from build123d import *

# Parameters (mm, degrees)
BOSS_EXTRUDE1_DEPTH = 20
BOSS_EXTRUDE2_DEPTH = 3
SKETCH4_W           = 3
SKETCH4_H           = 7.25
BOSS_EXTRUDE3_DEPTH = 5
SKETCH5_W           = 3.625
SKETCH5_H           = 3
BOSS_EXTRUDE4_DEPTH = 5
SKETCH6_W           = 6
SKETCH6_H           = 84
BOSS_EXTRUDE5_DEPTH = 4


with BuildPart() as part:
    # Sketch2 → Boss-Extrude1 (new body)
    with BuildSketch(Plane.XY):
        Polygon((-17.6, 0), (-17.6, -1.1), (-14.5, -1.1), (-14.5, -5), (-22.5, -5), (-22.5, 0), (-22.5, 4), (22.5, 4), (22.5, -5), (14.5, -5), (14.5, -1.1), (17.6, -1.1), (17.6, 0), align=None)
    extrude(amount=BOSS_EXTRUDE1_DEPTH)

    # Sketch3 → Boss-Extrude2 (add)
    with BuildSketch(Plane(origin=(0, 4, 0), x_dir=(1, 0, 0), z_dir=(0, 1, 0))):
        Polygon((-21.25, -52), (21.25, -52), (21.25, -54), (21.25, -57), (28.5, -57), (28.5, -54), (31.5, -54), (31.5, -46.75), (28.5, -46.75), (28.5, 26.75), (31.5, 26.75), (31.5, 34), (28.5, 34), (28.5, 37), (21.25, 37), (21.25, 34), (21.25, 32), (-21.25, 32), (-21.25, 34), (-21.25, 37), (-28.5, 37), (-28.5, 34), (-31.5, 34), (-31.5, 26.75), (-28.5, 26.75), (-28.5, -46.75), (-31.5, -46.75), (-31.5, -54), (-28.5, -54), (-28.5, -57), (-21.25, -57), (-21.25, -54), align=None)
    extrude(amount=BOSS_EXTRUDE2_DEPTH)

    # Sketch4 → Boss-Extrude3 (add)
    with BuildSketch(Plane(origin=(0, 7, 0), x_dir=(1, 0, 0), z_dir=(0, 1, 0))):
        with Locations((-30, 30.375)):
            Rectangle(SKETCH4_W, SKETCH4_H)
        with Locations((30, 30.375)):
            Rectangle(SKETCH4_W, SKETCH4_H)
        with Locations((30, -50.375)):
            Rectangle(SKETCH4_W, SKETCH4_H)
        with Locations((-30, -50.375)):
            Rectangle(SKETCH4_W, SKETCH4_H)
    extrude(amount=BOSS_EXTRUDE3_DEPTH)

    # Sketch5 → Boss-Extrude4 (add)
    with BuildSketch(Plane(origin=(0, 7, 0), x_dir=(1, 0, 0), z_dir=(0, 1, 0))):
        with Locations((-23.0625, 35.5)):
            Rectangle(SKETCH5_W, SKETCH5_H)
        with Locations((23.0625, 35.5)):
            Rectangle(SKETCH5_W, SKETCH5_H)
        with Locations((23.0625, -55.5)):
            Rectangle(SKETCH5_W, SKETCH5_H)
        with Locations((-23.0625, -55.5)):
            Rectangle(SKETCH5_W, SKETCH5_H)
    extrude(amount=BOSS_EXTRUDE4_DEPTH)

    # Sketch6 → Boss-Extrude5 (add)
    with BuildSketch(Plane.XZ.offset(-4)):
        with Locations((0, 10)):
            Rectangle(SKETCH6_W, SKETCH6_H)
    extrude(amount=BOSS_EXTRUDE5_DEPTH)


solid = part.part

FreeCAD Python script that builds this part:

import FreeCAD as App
import Part
import Sketcher

V = App.Vector


def add_polygon(sketch, points):
    """Adds a closed chain of lines whose ends are joined by coincident constraints."""
    first, n = sketch.GeometryCount, len(points)
    for a, b in zip(points, points[1:] + points[:1]):
        sketch.addGeometry(Part.LineSegment(App.Vector(*a, 0), App.Vector(*b, 0)), False)
    for i in range(n):
        sketch.addConstraint(Sketcher.Constraint("Coincident", first + i, 2, first + (i + 1) % n, 1))

doc = App.newDocument("Part")
params = doc.addObject("Spreadsheet::Sheet", "Params")
for row, (alias, value) in enumerate([
    ("sketch1_width", "8 mm"),
    ("sketch1_width2", "45 mm"),
    ("sketch1_height", "9 mm"),
    ("sketch1_width3", "35.2 mm"),
    ("sketch1_height2", "1.1 mm"),
    ("pad1_length", "20 mm"),
    ("sketch2_width", "3 mm"),
    ("sketch2_height", "5 mm"),
    ("sketch2_width2", "42.5 mm"),
    ("sketch2_height2", "73.5 mm"),
    ("pad2_length", "3 mm"),
    ("sketch3_width", "3 mm"),
    ("sketch3_height", "7.25 mm"),
    ("pad3_length", "5 mm"),
    ("sketch4_height", "3 mm"),
    ("pad4_length", "5 mm"),
    ("sketch5_width", "6 mm"),
    ("sketch5_height", "84 mm"),
    ("pad5_length", "4 mm"),
], start=1):
    params.set(f"A{row}", alias)
    params.set(f"B{row}", "=" + value)
    params.setAlias(f"B{row}", alias)

body = doc.addObject("PartDesign::Body", "Body")

# Sketch on XY plane
sketch1 = body.newObject("Sketcher::SketchObject", "Sketch")
sketch1.AttachmentSupport = (doc.getObject("XY_Plane"), [""])
sketch1.MapMode = "FlatFace"
add_polygon(sketch1, [(-17.6, -1.1), (-17.6, 0), (17.6, 0), (17.6, -1.1), (14.5, -1.1), (14.5, -5), (22.5, -5), (22.5, 4), (-22.5, 4), (-22.5, -5), (-14.5, -5), (-14.5, -1.1)])  # lines 0-11
sketch1.addConstraint([
    Sketcher.Constraint("Vertical", 0),
    Sketcher.Constraint("Horizontal", 1),
    Sketcher.Constraint("Vertical", 2),
    Sketcher.Constraint("Horizontal", 3),
    Sketcher.Constraint("Vertical", 4),
    Sketcher.Constraint("Horizontal", 5),
    Sketcher.Constraint("Vertical", 6),
    Sketcher.Constraint("Horizontal", 7),
    Sketcher.Constraint("Vertical", 8),
    Sketcher.Constraint("Horizontal", 9),
    Sketcher.Constraint("Vertical", 10),
    Sketcher.Constraint("Horizontal", 11),
    Sketcher.Constraint("Symmetric", 0, 2, 1, 2, -1, 1),
    Sketcher.Constraint("Symmetric", 5, 2, 8, 2, -2),
    Sketcher.Constraint("Symmetric", 3, 2, 10, 2, -2),
    Sketcher.Constraint("DistanceX", 5, 1, 5, 2, 8.0),
    Sketcher.Constraint("DistanceX", 7, 2, 7, 1, 45.0),
    Sketcher.Constraint("DistanceY", 6, 1, 6, 2, 9.0),
    Sketcher.Constraint("DistanceX", 1, 1, 1, 2, 35.2),
    Sketcher.Constraint("DistanceY", 0, 1, 0, 2, 1.1),
    Sketcher.Constraint("DistanceY", 4, 2, 4, 1, 3.9),
])
sketch1.setExpression("Constraints[27]", "Params.sketch1_width")
sketch1.setExpression("Constraints[28]", "Params.sketch1_width2")
sketch1.setExpression("Constraints[29]", "Params.sketch1_height")
sketch1.setExpression("Constraints[30]", "Params.sketch1_width3")
sketch1.setExpression("Constraints[31]", "Params.sketch1_height2")
pad1 = body.newObject("PartDesign::Pad", "Pad")
pad1.Profile = sketch1
pad1.setExpression("Length", "Params.pad1_length")

# Sketch on XZ plane
sketch2 = body.newObject("Sketcher::SketchObject", "Sketch001")
sketch2.AttachmentSupport = (doc.getObject("XZ_Plane"), [""])
sketch2.MapMode = "FlatFace"
sketch2.AttachmentOffset = App.Placement(V(0, 0, -4), App.Rotation())
add_polygon(sketch2, [(-21.2, 52), (21.2, 52), (21.2, 57), (28.5, 57), (28.5, 54), (31.5, 54), (31.5, 46.8), (28.5, 46.8), (28.5, -26.8), (31.5, -26.8), (31.5, -34), (28.5, -34), (28.5, -37), (21.2, -37), (21.2, -32), (-21.2, -32), (-21.2, -37), (-28.5, -37), (-28.5, -34), (-31.5, -34), (-31.5, -26.8), (-28.5, -26.8), (-28.5, 46.8), (-31.5, 46.8), (-31.5, 54), (-28.5, 54), (-28.5, 57), (-21.2, 57)])  # lines 0-27
sketch2.addConstraint([
    Sketcher.Constraint("Horizontal", 0),
    Sketcher.Constraint("Vertical", 1),
    Sketcher.Constraint("Horizontal", 2),
    Sketcher.Constraint("Vertical", 3),
    Sketcher.Constraint("Horizontal", 4),
    Sketcher.Constraint("Vertical", 5),
    Sketcher.Constraint("Horizontal", 6),
    Sketcher.Constraint("Vertical", 7),
    Sketcher.Constraint("Horizontal", 8),
    Sketcher.Constraint("Vertical", 9),
    Sketcher.Constraint("Horizontal", 10),
    Sketcher.Constraint("Vertical", 11),
    Sketcher.Constraint("Horizontal", 12),
    Sketcher.Constraint("Vertical", 13),
    Sketcher.Constraint("Horizontal", 14),
    Sketcher.Constraint("Vertical", 15),
    Sketcher.Constraint("Horizontal", 16),
    Sketcher.Constraint("Vertical", 17),
    Sketcher.Constraint("Horizontal", 18),
    Sketcher.Constraint("Vertical", 19),
    Sketcher.Constraint("Horizontal", 20),
    Sketcher.Constraint("Vertical", 21),
    Sketcher.Constraint("Horizontal", 22),
    Sketcher.Constraint("Vertical", 23),
    Sketcher.Constraint("Horizontal", 24),
    Sketcher.Constraint("Vertical", 25),
    Sketcher.Constraint("Horizontal", 26),
    Sketcher.Constraint("Vertical", 27),
    Sketcher.Constraint("Symmetric", 12, 2, 15, 2, -2),
    Sketcher.Constraint("Symmetric", 10, 2, 17, 2, -2),
    Sketcher.Constraint("Symmetric", 8, 2, 19, 2, -2),
    Sketcher.Constraint("Symmetric", 6, 2, 21, 2, -2),
    Sketcher.Constraint("Symmetric", 4, 2, 23, 2, -2),
    Sketcher.Constraint("Symmetric", 2, 2, 25, 2, -2),
    Sketcher.Constraint("Vertical", 3, 2, 6, 2),
    Sketcher.Constraint("Vertical", 5, 2, 8, 2),
    Sketcher.Constraint("Vertical", 7, 2, 10, 2),
    Sketcher.Constraint("Vertical", 1, 2, 12, 2),
    Sketcher.Constraint("Vertical", 15, 2, 26, 2),
    Sketcher.Constraint("Equal", 24, 3),
    Sketcher.Constraint("Equal", 26, 5),
    Sketcher.Constraint("Equal", 5, 9),
    Sketcher.Constraint("Equal", 3, 11),
    Sketcher.Constraint("Equal", 1, 13),
    Sketcher.Constraint("DistanceX", 4, 1, 4, 2, 3.0),
    Sketcher.Constraint("DistanceY", 1, 1, 1, 2, 5.0),
    Sketcher.Constraint("DistanceX", 0, 1, 0, 2, 42.5),
    Sketcher.Constraint("DistanceY", 7, 2, 7, 1, 73.5),
    Sketcher.Constraint("DistanceY", -1, 1, 0, 2, 52.0),
    Sketcher.Constraint("DistanceY", 9, 2, -1, 1, 34.0),
])
sketch2.setExpression("Constraints[72]", "Params.sketch2_width")
sketch2.setExpression("Constraints[73]", "Params.sketch2_height")
sketch2.setExpression("Constraints[74]", "Params.sketch2_width2")
sketch2.setExpression("Constraints[75]", "Params.sketch2_height2")
pad2 = body.newObject("PartDesign::Pad", "Pad001")
pad2.Profile = sketch2
pad2.setExpression("Length", "Params.pad2_length")
pad2.Reversed = True

# Sketch on XZ plane
sketch3 = body.newObject("Sketcher::SketchObject", "Sketch002")
sketch3.AttachmentSupport = (doc.getObject("XZ_Plane"), [""])
sketch3.MapMode = "FlatFace"
sketch3.AttachmentOffset = App.Placement(V(0, 0, -7), App.Rotation())
add_polygon(sketch3, [(-31.5, -34), (-31.5, -26.8), (-28.5, -26.8), (-28.5, -34)])  # lines 0-3
add_polygon(sketch3, [(28.5, -34), (28.5, -26.8), (31.5, -26.8), (31.5, -34)])  # lines 4-7
add_polygon(sketch3, [(28.5, 46.8), (28.5, 54), (31.5, 54), (31.5, 46.8)])  # lines 8-11
add_polygon(sketch3, [(-31.5, 46.8), (-31.5, 54), (-28.5, 54), (-28.5, 46.8)])  # lines 12-15
sketch3.addConstraint([
    Sketcher.Constraint("Vertical", 0),
    Sketcher.Constraint("Horizontal", 1),
    Sketcher.Constraint("Vertical", 2),
    Sketcher.Constraint("Horizontal", 3),
    Sketcher.Constraint("Vertical", 4),
    Sketcher.Constraint("Horizontal", 5),
    Sketcher.Constraint("Vertical", 6),
    Sketcher.Constraint("Horizontal", 7),
    Sketcher.Constraint("Vertical", 8),
    Sketcher.Constraint("Horizontal", 9),
    Sketcher.Constraint("Vertical", 10),
    Sketcher.Constraint("Horizontal", 11),
    Sketcher.Constraint("Vertical", 12),
    Sketcher.Constraint("Horizontal", 13),
    Sketcher.Constraint("Vertical", 14),
    Sketcher.Constraint("Horizontal", 15),
    Sketcher.Constraint("Symmetric", 1, 2, 4, 2, -2),
    Sketcher.Constraint("Symmetric", 3, 2, 6, 2, -2),
    Sketcher.Constraint("Symmetric", 9, 2, 12, 2, -2),
    Sketcher.Constraint("Symmetric", 11, 2, 14, 2, -2),
    Sketcher.Constraint("Vertical", 7, 2, 8, 2),
    Sketcher.Constraint("Vertical", 6, 2, 9, 2),
    Sketcher.Constraint("Equal", 6, 8),
    Sketcher.Constraint("DistanceX", 1, 1, 1, 2, 3.0),
    Sketcher.Constraint("DistanceY", 2, 2, -1, 1, 34.0),
    Sketcher.Constraint("DistanceY", -1, 1, 8, 2, 54.0),
    Sketcher.Constraint("DistanceX", 1, 2, 4, 2, 57.0),
    Sketcher.Constraint("DistanceY", 0, 1, 0, 2, 7.25),
])
sketch3.setExpression("Constraints[39]", "Params.sketch3_width")
sketch3.setExpression("Constraints[43]", "Params.sketch3_height")
pad3 = body.newObject("PartDesign::Pad", "Pad002")
pad3.Profile = sketch3
pad3.setExpression("Length", "Params.pad3_length")
pad3.Reversed = True

# Sketch on XZ plane
sketch4 = body.newObject("Sketcher::SketchObject", "Sketch003")
sketch4.AttachmentSupport = (doc.getObject("XZ_Plane"), [""])
sketch4.MapMode = "FlatFace"
sketch4.AttachmentOffset = App.Placement(V(0, 0, -7), App.Rotation())
add_polygon(sketch4, [(-24.9, -37), (-24.9, -34), (-21.2, -34), (-21.2, -37)])  # lines 0-3
add_polygon(sketch4, [(21.2, -37), (21.2, -34), (24.9, -34), (24.9, -37)])  # lines 4-7
add_polygon(sketch4, [(21.2, 54), (21.2, 57), (24.9, 57), (24.9, 54)])  # lines 8-11
add_polygon(sketch4, [(-24.9, 54), (-24.9, 57), (-21.2, 57), (-21.2, 54)])  # lines 12-15
sketch4.addConstraint([
    Sketcher.Constraint("Vertical", 0),
    Sketcher.Constraint("Horizontal", 1),
    Sketcher.Constraint("Vertical", 2),
    Sketcher.Constraint("Horizontal", 3),
    Sketcher.Constraint("Vertical", 4),
    Sketcher.Constraint("Horizontal", 5),
    Sketcher.Constraint("Vertical", 6),
    Sketcher.Constraint("Horizontal", 7),
    Sketcher.Constraint("Vertical", 8),
    Sketcher.Constraint("Horizontal", 9),
    Sketcher.Constraint("Vertical", 10),
    Sketcher.Constraint("Horizontal", 11),
    Sketcher.Constraint("Vertical", 12),
    Sketcher.Constraint("Horizontal", 13),
    Sketcher.Constraint("Vertical", 14),
    Sketcher.Constraint("Horizontal", 15),
    Sketcher.Constraint("Symmetric", 1, 2, 4, 2, -2),
    Sketcher.Constraint("Symmetric", 3, 2, 6, 2, -2),
    Sketcher.Constraint("Symmetric", 9, 2, 12, 2, -2),
    Sketcher.Constraint("Symmetric", 11, 2, 14, 2, -2),
    Sketcher.Constraint("Vertical", 7, 2, 8, 2),
    Sketcher.Constraint("Vertical", 6, 2, 9, 2),
    Sketcher.Constraint("Equal", 6, 8),
    Sketcher.Constraint("DistanceY", 0, 1, 0, 2, 3.0),
    Sketcher.Constraint("DistanceY", 0, 2, -1, 1, 34.0),
    Sketcher.Constraint("DistanceY", -1, 1, 8, 2, 57.0),
    Sketcher.Constraint("DistanceX", 1, 2, 4, 2, 42.5),
    Sketcher.Constraint("DistanceX", 1, 1, 1, 2, 3.625),
])
sketch4.setExpression("Constraints[39]", "Params.sketch4_height")
pad4 = body.newObject("PartDesign::Pad", "Pad003")
pad4.Profile = sketch4
pad4.setExpression("Length", "Params.pad4_length")
pad4.Reversed = True

# Sketch on XZ plane
sketch5 = body.newObject("Sketcher::SketchObject", "Sketch004")
sketch5.AttachmentSupport = (doc.getObject("XZ_Plane"), [""])
sketch5.MapMode = "FlatFace"
sketch5.AttachmentOffset = App.Placement(V(0, 0, -4), App.Rotation())
add_polygon(sketch5, [(-3, 52), (-3, -32), (3, -32), (3, 52)])  # lines 0-3
sketch5.addConstraint([
    Sketcher.Constraint("Vertical", 0),
    Sketcher.Constraint("Horizontal", 1),
    Sketcher.Constraint("Vertical", 2),
    Sketcher.Constraint("Horizontal", 3),
    Sketcher.Constraint("DistanceX", 1, 1, 1, 2, 6.0),
    Sketcher.Constraint("DistanceY", 0, 2, 0, 1, 84.0),
    Sketcher.Constraint("DistanceX", 0, 2, -1, 1, 3.0),
    Sketcher.Constraint("DistanceY", 0, 2, -1, 1, 32.0),
])
sketch5.setExpression("Constraints[8]", "Params.sketch5_width")
sketch5.setExpression("Constraints[9]", "Params.sketch5_height")
pad5 = body.newObject("PartDesign::Pad", "Pad004")
pad5.Profile = sketch5
pad5.setExpression("Length", "Params.pad5_length")

doc.recompute()
